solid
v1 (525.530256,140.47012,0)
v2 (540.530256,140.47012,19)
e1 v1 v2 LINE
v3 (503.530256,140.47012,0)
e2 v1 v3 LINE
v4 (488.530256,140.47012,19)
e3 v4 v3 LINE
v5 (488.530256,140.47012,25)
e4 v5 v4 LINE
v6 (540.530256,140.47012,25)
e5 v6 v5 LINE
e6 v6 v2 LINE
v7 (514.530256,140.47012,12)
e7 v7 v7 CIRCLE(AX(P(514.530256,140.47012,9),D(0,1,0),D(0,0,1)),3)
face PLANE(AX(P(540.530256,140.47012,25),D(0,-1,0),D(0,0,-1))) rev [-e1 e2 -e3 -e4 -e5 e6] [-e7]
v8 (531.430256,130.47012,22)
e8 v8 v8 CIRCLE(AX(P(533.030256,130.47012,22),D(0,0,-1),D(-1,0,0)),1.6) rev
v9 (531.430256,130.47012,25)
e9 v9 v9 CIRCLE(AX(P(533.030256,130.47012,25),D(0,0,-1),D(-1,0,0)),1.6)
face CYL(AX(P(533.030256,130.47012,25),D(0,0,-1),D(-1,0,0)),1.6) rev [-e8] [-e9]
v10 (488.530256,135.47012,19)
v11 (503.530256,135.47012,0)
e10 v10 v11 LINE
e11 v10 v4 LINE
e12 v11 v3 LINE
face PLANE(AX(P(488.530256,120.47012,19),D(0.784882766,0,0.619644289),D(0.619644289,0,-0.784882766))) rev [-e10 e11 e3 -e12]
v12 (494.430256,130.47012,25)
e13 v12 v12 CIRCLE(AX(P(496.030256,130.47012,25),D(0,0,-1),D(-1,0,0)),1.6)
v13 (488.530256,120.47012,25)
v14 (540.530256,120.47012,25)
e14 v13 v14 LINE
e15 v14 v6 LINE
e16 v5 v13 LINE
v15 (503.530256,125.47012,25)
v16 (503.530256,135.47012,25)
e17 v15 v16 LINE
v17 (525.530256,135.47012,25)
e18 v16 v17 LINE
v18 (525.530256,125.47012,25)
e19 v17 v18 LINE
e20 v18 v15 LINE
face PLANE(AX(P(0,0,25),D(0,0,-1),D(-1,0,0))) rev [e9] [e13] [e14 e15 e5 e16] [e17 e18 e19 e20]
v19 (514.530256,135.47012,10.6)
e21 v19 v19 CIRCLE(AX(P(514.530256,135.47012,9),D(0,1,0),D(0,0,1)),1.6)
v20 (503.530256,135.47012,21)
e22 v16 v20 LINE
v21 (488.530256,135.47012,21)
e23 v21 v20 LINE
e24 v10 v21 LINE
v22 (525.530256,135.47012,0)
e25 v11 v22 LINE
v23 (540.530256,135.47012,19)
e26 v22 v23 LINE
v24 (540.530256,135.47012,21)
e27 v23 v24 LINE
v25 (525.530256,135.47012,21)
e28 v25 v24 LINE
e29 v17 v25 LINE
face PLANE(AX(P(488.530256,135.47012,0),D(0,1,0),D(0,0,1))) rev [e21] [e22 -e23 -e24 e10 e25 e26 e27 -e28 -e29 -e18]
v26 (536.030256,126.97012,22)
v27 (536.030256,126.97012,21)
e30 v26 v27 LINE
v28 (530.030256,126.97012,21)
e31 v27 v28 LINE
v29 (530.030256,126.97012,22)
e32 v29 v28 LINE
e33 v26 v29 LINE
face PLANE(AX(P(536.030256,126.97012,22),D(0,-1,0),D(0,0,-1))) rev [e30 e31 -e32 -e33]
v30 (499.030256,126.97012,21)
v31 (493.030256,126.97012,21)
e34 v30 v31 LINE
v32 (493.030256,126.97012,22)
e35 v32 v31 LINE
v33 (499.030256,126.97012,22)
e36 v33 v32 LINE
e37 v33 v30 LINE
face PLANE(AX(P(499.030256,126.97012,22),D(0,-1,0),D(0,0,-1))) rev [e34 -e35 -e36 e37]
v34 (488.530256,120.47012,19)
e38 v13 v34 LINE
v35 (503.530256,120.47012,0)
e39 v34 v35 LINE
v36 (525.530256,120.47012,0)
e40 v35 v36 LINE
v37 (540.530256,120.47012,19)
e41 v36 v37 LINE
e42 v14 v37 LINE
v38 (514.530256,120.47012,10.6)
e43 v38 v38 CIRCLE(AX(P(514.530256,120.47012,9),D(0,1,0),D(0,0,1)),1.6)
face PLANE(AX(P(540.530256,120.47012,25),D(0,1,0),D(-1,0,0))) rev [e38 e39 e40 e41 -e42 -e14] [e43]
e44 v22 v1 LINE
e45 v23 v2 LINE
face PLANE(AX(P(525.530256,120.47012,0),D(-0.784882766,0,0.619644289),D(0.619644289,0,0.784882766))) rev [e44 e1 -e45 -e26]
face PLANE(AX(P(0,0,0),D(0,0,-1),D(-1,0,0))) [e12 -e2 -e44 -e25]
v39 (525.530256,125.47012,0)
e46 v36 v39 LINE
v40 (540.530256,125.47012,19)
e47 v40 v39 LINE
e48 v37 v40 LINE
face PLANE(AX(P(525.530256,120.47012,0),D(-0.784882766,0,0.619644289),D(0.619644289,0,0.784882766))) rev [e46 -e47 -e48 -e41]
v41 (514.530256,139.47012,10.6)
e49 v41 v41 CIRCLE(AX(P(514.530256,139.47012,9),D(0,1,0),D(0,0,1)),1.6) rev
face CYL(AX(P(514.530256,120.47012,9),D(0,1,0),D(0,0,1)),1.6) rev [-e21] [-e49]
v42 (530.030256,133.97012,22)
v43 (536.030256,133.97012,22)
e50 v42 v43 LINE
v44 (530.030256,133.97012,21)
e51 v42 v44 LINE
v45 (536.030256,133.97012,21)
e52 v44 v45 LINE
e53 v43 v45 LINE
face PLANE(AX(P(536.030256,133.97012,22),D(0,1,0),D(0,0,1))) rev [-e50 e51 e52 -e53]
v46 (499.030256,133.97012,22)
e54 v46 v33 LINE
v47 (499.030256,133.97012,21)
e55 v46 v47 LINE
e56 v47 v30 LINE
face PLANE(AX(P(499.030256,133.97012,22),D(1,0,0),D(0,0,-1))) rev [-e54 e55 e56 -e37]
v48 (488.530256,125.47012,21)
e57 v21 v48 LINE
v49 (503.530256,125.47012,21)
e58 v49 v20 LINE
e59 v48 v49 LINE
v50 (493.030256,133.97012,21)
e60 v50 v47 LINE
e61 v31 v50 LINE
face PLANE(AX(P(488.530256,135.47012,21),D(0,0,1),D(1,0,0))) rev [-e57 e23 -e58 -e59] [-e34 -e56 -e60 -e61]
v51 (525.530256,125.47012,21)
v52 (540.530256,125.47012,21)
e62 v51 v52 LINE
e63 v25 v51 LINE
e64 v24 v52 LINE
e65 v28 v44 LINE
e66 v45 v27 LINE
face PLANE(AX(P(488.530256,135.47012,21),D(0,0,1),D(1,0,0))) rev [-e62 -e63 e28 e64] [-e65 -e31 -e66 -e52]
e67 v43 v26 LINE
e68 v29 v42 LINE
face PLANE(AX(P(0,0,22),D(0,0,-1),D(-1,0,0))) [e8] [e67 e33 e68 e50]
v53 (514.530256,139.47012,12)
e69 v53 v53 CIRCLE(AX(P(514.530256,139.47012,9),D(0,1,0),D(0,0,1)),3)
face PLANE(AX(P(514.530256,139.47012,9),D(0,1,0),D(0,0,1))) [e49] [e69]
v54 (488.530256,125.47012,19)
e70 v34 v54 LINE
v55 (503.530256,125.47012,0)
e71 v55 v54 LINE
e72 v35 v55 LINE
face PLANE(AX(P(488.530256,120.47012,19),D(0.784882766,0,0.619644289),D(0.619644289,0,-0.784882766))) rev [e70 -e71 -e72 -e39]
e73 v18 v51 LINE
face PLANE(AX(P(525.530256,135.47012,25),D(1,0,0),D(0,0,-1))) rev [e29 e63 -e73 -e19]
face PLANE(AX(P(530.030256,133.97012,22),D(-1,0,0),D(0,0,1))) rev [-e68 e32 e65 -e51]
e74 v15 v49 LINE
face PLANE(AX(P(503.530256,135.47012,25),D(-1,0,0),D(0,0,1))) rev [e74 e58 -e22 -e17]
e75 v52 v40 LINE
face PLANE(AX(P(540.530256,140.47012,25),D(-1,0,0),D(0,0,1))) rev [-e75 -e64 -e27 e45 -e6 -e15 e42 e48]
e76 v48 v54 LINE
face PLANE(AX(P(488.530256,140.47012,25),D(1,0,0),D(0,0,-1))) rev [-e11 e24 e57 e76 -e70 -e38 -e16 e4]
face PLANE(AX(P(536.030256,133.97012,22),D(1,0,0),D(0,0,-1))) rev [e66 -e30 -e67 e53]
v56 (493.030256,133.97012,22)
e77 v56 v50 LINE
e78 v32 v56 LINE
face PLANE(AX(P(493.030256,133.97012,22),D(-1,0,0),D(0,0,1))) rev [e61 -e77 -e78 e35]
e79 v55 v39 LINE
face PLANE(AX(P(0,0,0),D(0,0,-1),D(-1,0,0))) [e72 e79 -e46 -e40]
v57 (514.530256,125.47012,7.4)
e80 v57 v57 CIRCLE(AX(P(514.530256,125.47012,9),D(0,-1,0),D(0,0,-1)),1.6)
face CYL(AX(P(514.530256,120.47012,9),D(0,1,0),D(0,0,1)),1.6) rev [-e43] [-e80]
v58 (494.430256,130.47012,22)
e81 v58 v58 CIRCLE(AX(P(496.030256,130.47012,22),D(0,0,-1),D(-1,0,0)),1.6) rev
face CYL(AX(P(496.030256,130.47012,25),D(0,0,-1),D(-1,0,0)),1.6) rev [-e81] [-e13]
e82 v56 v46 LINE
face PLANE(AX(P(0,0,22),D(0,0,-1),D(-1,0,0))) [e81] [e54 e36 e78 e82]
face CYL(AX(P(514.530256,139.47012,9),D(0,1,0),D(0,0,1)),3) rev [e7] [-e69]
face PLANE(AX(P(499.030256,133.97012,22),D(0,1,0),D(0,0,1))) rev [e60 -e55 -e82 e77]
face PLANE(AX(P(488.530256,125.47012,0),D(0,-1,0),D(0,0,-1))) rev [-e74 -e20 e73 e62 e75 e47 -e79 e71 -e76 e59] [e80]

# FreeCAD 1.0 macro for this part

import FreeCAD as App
import Part
import Sketcher
from FreeCAD import Vector
Q = App.Units.Quantity

doc = App.newDocument("Part")
body = doc.addObject("PartDesign::Body", "Body")

sketch1 = body.newObject("Sketcher::SketchObject", "Sketch")
sketch1.AttachmentSupport = (doc.getObject("XY_Plane"), [""])
sketch1.MapMode = "FlatFace"
sketch1.addGeometry(Part.LineSegment(Vector(489, 140, 0), Vector(489, 120, 0)), False)
sketch1.addGeometry(Part.LineSegment(Vector(489, 120, 0), Vector(541, 120, 0)), False)
sketch1.addGeometry(Part.LineSegment(Vector(541, 120, 0), Vector(541, 140, 0)), False)
sketch1.addGeometry(Part.LineSegment(Vector(541, 140, 0), Vector(489, 140, 0)), False)
sketch1.addConstraint(Sketcher.Constraint("Coincident", 0, 2, 1, 1))
sketch1.addConstraint(Sketcher.Constraint("Coincident", 1, 2, 2, 1))
sketch1.addConstraint(Sketcher.Constraint("Coincident", 2, 2, 3, 1))
sketch1.addConstraint(Sketcher.Constraint("Coincident", 3, 2, 0, 1))
sketch1.addConstraint(Sketcher.Constraint("Vertical", 0))
sketch1.addConstraint(Sketcher.Constraint("Horizontal", 1))
sketch1.addConstraint(Sketcher.Constraint("Vertical", 2))
sketch1.addConstraint(Sketcher.Constraint("Horizontal", 3))
sketch1.addConstraint(Sketcher.Constraint("DistanceX", 1, 1, 1, 2, Q("52 mm")))
sketch1.addConstraint(Sketcher.Constraint("DistanceY", 0, 2, 0, 1, Q("20 mm")))
sketch1.addConstraint(Sketcher.Constraint("DistanceY", -1, 1, 0, 2, Q("120.47012 mm")))
sketch1.addConstraint(Sketcher.Constraint("DistanceX", -1, 1, 0, 2, Q("488.530256 mm")))
pad1 = body.newObject("PartDesign::Pad", "Pad")
pad1.Profile = sketch1
pad1.Length = 25

sketch2 = body.newObject("Sketcher::SketchObject", "Sketch001")
sketch2.AttachmentSupport = (doc.getObject("YZ_Plane"), [""])
sketch2.MapMode = "FlatFace"
sketch2.AttachmentOffset = App.Placement(Vector(0, 0, 540.530256), App.Rotation())
sketch2.addGeometry(Part.LineSegment(Vector(135, 21, 0), Vector(125, 21, 0)), False)
sketch2.addGeometry(Part.LineSegment(Vector(125, 21, 0), Vector(125, 0, 0)), False)
sketch2.addGeometry(Part.LineSegment(Vector(125, 0, 0), Vector(135, 0, 0)), False)
sketch2.addGeometry(Part.LineSegment(Vector(135, 0, 0), Vector(135, 21, 0)), False)
sketch2.addConstraint(Sketcher.Constraint("Coincident", 0, 2, 1, 1))
sketch2.addConstraint(Sketcher.Constraint("Coincident", 1, 2, 2, 1))
sketch2.addConstraint(Sketcher.Constraint("Coincident", 2, 2, 3, 1))
sketch2.addConstraint(Sketcher.Constraint("Coincident", 3, 2, 0, 1))
sketch2.addConstraint(Sketcher.Constraint("Horizontal", 0))
sketch2.addConstraint(Sketcher.Constraint("Vertical", 1))
sketch2.addConstraint(Sketcher.Constraint("Horizontal", 2))
sketch2.addConstraint(Sketcher.Constraint("Vertical", 3))
sketch2.addConstraint(Sketcher.Constraint("PointOnObject", 1, 2, -1))
sketch2.addConstraint(Sketcher.Constraint("DistanceX", 0, 2, 0, 1, Q("10 mm")))
sketch2.addConstraint(Sketcher.Constraint("DistanceY", 1, 2, 1, 1, Q("21 mm")))
sketch2.addConstraint(Sketcher.Constraint("DistanceX", -1, 1, 0, 2, Q("125.47012 mm")))
pocket1 = body.newObject("PartDesign::Pocket", "Pocket")
pocket1.Profile = sketch2
pocket1.Type = "ThroughAll"

sketch3 = body.newObject("Sketcher::SketchObject", "Sketch002")
sketch3.AttachmentSupport = (doc.getObject("XZ_Plane"), [""])
sketch3.MapMode = "FlatFace"
sketch3.AttachmentOffset = App.Placement(Vector(0, 0, -140.47012), App.Rotation())
sketch3.addGeometry(Part.LineSegment(Vector(488.5, 19, 0), Vector(503.5, 0, 0)), False)
sketch3.addGeometry(Part.LineSegment(Vector(503.5, 0, 0), Vector(525.5, 0, 0)), False)
sketch3.addGeometry(Part.LineSegment(Vector(525.5, 0, 0), Vector(540.5, 19, 0)), False)
sketch3.addGeometry(Part.LineSegment(Vector(540.5, 19, 0), Vector(550, 19, 0)), False)
sketch3.addGeometry(Part.LineSegment(Vector(550, 19, 0), Vector(550, -5.4, 0)), False)
sketch3.addGeometry(Part.LineSegment(Vector(550, -5.4, 0), Vector(484.3, -5.4, 0)), False)
sketch3.addGeometry(Part.LineSegment(Vector(484.3, -5.4, 0), Vector(484.3, 19, 0)), False)
sketch3.addGeometry(Part.LineSegment(Vector(484.3, 19, 0), Vector(488.5, 19, 0)), False)
sketch3.addConstraint(Sketcher.Constraint("Coincident", 0, 2, 1, 1))
sketch3.addConstraint(Sketcher.Constraint("Coincident", 1, 2, 2, 1))
sketch3.addConstraint(Sketcher.Constraint("Coincident", 2, 2, 3, 1))
sketch3.addConstraint(Sketcher.Constraint("Coincident", 3, 2, 4, 1))
sketch3.addConstraint(Sketcher.Constraint("Coincident", 4, 2, 5, 1))
sketch3.addConstraint(Sketcher.Constraint("Coincident", 5, 2, 6, 1))
sketch3.addConstraint(Sketcher.Constraint("Coincident", 6, 2, 7, 1))
sketch3.addConstraint(Sketcher.Constraint("Coincident", 7, 2, 0, 1))
sketch3.addConstraint(Sketcher.Constraint("Horizontal", 1))
sketch3.addConstraint(Sketcher.Constraint("Horizontal", 3))
sketch3.addConstraint(Sketcher.Constraint("Vertical", 4))
sketch3.addConstraint(Sketcher.Constraint("Horizontal", 5))
sketch3.addConstraint(Sketcher.Constraint("Vertical", 6))
sketch3.addConstraint(Sketcher.Constraint("Horizontal", 7))
sketch3.addConstraint(Sketcher.Constraint("PointOnObject", 0, 2, -1))
sketch3.addConstraint(Sketcher.Constraint("Horizontal", 3, 2, 6, 2))
sketch3.addConstraint(Sketcher.Constraint("Equal", 0, 2))
sketch3.addConstraint(Sketcher.Constraint("DistanceX", 1, 1, 1, 2, Q("22 mm")))
sketch3.addConstraint(Sketcher.Constraint("DistanceY", -1, 1, 2, 2, Q("19 mm")))
sketch3.addConstraint(Sketcher.Constraint("DistanceX", 1, 2, 2, 2, Q("15 mm")))
sketch3.addConstraint(Sketcher.Constraint("DistanceX", 7, 1, 7, 2, Q("4.252762 mm")))
sketch3.addConstraint(Sketcher.Constraint("DistanceY", 4, 2, 4, 1, Q("24.423319 mm")))
sketch3.addConstraint(Sketcher.Constraint("DistanceX", 3, 1, 3, 2, Q("9.470075 mm")))
sketch3.addConstraint(Sketcher.Constraint("DistanceX", -1, 1, 3, 2, Q("550.000331 mm")))
pocket2 = body.newObject("PartDesign::Pocket", "Pocket001")
pocket2.Profile = sketch3
pocket2.Type = "ThroughAll"
pocket2.Reversed = True

sketch4 = body.newObject("Sketcher::SketchObject", "Sketch003")
sketch4.AttachmentSupport = (doc.getObject("XZ_Plane"), [""])
sketch4.MapMode = "FlatFace"
sketch4.AttachmentOffset = App.Placement(Vector(0, 0, -140.47012), App.Rotation())
sketch4.addGeometry(Part.Circle(Vector(514.5, 9, 0), Vector(0, 0, 1), 1.6), False)
sketch4.addConstraint(Sketcher.Constraint("Diameter", 0, Q("3.2 mm")))
sketch4.addConstraint(Sketcher.Constraint("DistanceY", -1, 1, 0, 3, Q("9 mm")))
sketch4.addConstraint(Sketcher.Constraint("DistanceX", -1, 1, 0, 3, Q("514.530256 mm")))
pocket3 = body.newObject("PartDesign::Pocket", "Pocket002")
pocket3.Profile = sketch4
pocket3.Type = "ThroughAll"
pocket3.Reversed = True

sketch5 = body.newObject("Sketcher::SketchObject", "Sketch004")
sketch5.AttachmentSupport = (doc.getObject("XY_Plane"), [""])
sketch5.MapMode = "FlatFace"
sketch5.AttachmentOffset = App.Placement(Vector(0, 0, 21), App.Rotation())
sketch5.addGeometry(Part.LineSegment(Vector(526, 135, 0), Vector(526, 125, 0)), False)
sketch5.addGeometry(Part.LineSegment(Vector(526, 125, 0), Vector(504, 125, 0)), False)
sketch5.addGeometry(Part.LineSegment(Vector(504, 125, 0), Vector(504, 135, 0)), False)
sketch5.addGeometry(Part.LineSegment(Vector(504, 135, 0), Vector(526, 135, 0)), False)
sketch5.addConstraint(Sketcher.Constraint("Coincident", 0, 2, 1, 1))
sketch5.addConstraint(Sketcher.Constraint("Coincident", 1, 2, 2, 1))
sketch5.addConstraint(Sketcher.Constraint("Coincident", 2, 2, 3, 1))
sketch5.addConstraint(Sketcher.Constraint("Coincident", 3, 2, 0, 1))
sketch5.addConstraint(Sketcher.Constraint("Vertical", 0))
sketch5.addConstraint(Sketcher.Constraint("Horizontal", 1))
sketch5.addConstraint(Sketcher.Constraint("Vertical", 2))
sketch5.addConstraint(Sketcher.Constraint("Horizontal", 3))
sketch5.addConstraint(Sketcher.Constraint("DistanceX", 1, 2, 1, 1, Q("22 mm")))
sketch5.addConstraint(Sketcher.Constraint("DistanceY", 0, 2, 0, 1, Q("10 mm")))
sketch5.addConstraint(Sketcher.Constraint("DistanceY", -1, 1, 0, 2, Q("125.47012 mm")))
sketch5.addConstraint(Sketcher.Constraint("DistanceX", -1, 1, 0, 2, Q("525.530256 mm")))
pocket4 = body.newObject("PartDesign::Pocket", "Pocket003")
pocket4.Profile = sketch5
pocket4.Length = 4
pocket4.Reversed = True

sketch6 = body.newObject("Sketcher::SketchObject", "Sketch005")
sketch6.AttachmentSupport = (doc.getObject("XY_Plane"), [""])
sketch6.MapMode = "FlatFace"
sketch6.AttachmentOffset = App.Placement(Vector(0, 0, 21), App.Rotation())
sketch6.addGeometry(Part.Circle(Vector(533, 130.5, 0), Vector(0, 0, 1), 1.6), False)
sketch6.addGeometry(Part.Circle(Vector(496, 130.5, 0), Vector(0, 0, 1), 1.6), False)
sketch6.addConstraint(Sketcher.Constraint("Equal", 0, 1))
sketch6.addConstraint(Sketcher.Constraint("Horizontal", 0, 3, 1, 3))
sketch6.addConstraint(Sketcher.Constraint("Diameter", 0, Q("3.2 mm")))
sketch6.addConstraint(Sketcher.Constraint("DistanceX", 1, 3, 0, 3, Q("37 mm")))
sketch6.addConstraint(Sketcher.Constraint("DistanceY", -1, 1, 0, 3, Q("130.47012 mm")))
sketch6.addConstraint(Sketcher.Constraint("DistanceX", -1, 1, 0, 3, Q("533.030256 mm")))
pocket5 = body.newObject("PartDesign::Pocket", "Pocket004")
pocket5.Profile = sketch6
pocket5.Length = 4
pocket5.Reversed = True

sketch7 = body.newObject("Sketcher::SketchObject", "Sketch006")
sketch7.AttachmentSupport = (doc.getObject("XY_Plane"), [""])
sketch7.MapMode = "FlatFace"
sketch7.AttachmentOffset = App.Placement(Vector(0, 0, 21), App.Rotation())
sketch7.addGeometry(Part.LineSegment(Vector(499, 134, 0), Vector(499, 127, 0)), False)
sketch7.addGeometry(Part.LineSegment(Vector(499, 127, 0), Vector(493, 127, 0)), False)
sketch7.addGeometry(Part.LineSegment(Vector(493, 127, 0), Vector(493, 134, 0)), False)
sketch7.addGeometry(Part.LineSegment(Vector(493, 134, 0), Vector(499, 134, 0)), False)
sketch7.addConstraint(Sketcher.Constraint("Coincident", 0, 2, 1, 1))
sketch7.addConstraint(Sketcher.Constraint("Coincident", 1, 2, 2, 1))
sketch7.addConstraint(Sketcher.Constraint("Coincident", 2, 2, 3, 1))
sketch7.addConstraint(Sketcher.Constraint("Coincident", 3, 2, 0, 1))
sketch7.addConstraint(Sketcher.Constraint("Vertical", 0))
sketch7.addConstraint(Sketcher.Constraint("Horizontal", 1))
sketch7.addConstraint(Sketcher.Constraint("Vertical", 2))
sketch7.addConstraint(Sketcher.Constraint("Horizontal", 3))
sketch7.addConstraint(Sketcher.Constraint("DistanceX", 1, 2, 1, 1, Q("6 mm")))
sketch7.addConstraint(Sketcher.Constraint("DistanceY", 0, 2, 0, 1, Q("7 mm")))
sketch7.addConstraint(Sketcher.Constraint("DistanceY", -1, 1, 0, 2, Q("126.97012 mm")))
sketch7.addConstraint(Sketcher.Constraint("DistanceX", -1, 1, 0, 2, Q("499.030256 mm")))
pocket6 = body.newObject("PartDesign::Pocket", "Pocket005")
pocket6.Profile = sketch7
pocket6.Length = 1
pocket6.Reversed = True

sketch8 = body.newObject("Sketcher::SketchObject", "Sketch007")
sketch8.AttachmentSupport = (doc.getObject("XY_Plane"), [""])
sketch8.MapMode = "FlatFace"
sketch8.AttachmentOffset = App.Placement(Vector(0, 0, 21), App.Rotation())
sketch8.addGeometry(Part.LineSegment(Vector(536, 134, 0), Vector(536, 127, 0)), False)
sketch8.addGeometry(Part.LineSegment(Vector(536, 127, 0), Vector(530, 127, 0)), False)
sketch8.addGeometry(Part.LineSegment(Vector(530, 127, 0), Vector(530, 134, 0)), False)
sketch8.addGeometry(Part.LineSegment(Vector(530, 134, 0), Vector(536, 134, 0)), False)
sketch8.addConstraint(Sketcher.Constraint("Coincident", 0, 2, 1, 1))
sketch8.addConstraint(Sketcher.Constraint("Coincident", 1, 2, 2, 1))
sketch8.addConstraint(Sketcher.Constraint("Coincident", 2, 2, 3, 1))
sketch8.addConstraint(Sketcher.Constraint("Coincident", 3, 2, 0, 1))
sketch8.addConstraint(Sketcher.Constraint("Vertical", 0))
sketch8.addConstraint(Sketcher.Constraint("Horizontal", 1))
sketch8.addConstraint(Sketcher.Constraint("Vertical", 2))
sketch8.addConstraint(Sketcher.Constraint("Horizontal", 3))
sketch8.addConstraint(Sketcher.Constraint("DistanceX", 1, 2, 1, 1, Q("6 mm")))
sketch8.addConstraint(Sketcher.Constraint("DistanceY", 0, 2, 0, 1, Q("7 mm")))
sketch8.addConstraint(Sketcher.Constraint("DistanceY", -1, 1, 0, 2, Q("126.97012 mm")))
sketch8.addConstraint(Sketcher.Constraint("DistanceX", -1, 1, 0, 2, Q("536.030256 mm")))
pocket7 = body.newObject("PartDesign::Pocket", "Pocket006")
pocket7.Profile = sketch8
pocket7.Length = 1
pocket7.Reversed = True

sketch9 = body.newObject("Sketcher::SketchObject", "Sketch008")
sketch9.AttachmentSupport = (doc.getObject("XZ_Plane"), [""])
sketch9.MapMode = "FlatFace"
sketch9.AttachmentOffset = App.Placement(Vector(0, 0, -140.47012), App.Rotation())
sketch9.addGeometry(Part.Circle(Vector(514.5, 9, 0), Vector(0, 0, 1), 3), False)
sketch9.addConstraint(Sketcher.Constraint("Diameter", 0, Q("6 mm")))
sketch9.addConstraint(Sketcher.Constraint("DistanceY", -1, 1, 0, 3, Q("9 mm")))
sketch9.addConstraint(Sketcher.Constraint("DistanceX", -1, 1, 0, 3, Q("514.530256 mm")))
pocket8 = body.newObject("PartDesign::Pocket", "Pocket007")
pocket8.Profile = sketch9
pocket8.Length = 1
pocket8.Reversed = True

doc.recompute()
